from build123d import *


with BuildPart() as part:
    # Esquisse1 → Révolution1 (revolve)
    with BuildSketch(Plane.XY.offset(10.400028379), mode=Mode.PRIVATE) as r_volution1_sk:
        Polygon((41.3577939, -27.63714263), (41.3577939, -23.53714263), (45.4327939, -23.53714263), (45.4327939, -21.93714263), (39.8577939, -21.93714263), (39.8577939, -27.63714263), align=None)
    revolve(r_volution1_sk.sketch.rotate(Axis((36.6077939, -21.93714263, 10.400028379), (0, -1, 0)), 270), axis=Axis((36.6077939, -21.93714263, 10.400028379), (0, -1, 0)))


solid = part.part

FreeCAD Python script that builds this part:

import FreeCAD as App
import Part
import Sketcher
from FreeCAD import Vector
Q = App.Units.Quantity


def add_polygon(sketch, points):
    """Adds a closed chain of lines whose ends are joined by coincident constraints."""
    first, n = sketch.GeometryCount, len(points)
    for a, b in zip(points, points[1:] + points[:1]):
        sketch.addGeometry(Part.LineSegment(App.Vector(*a, 0), App.Vector(*b, 0)), False)
    for i in range(n):
        sketch.addConstraint(Sketcher.Constraint("Coincident", first + i, 2, first + (i + 1) % n, 1))

doc = App.newDocument("Part")
params = doc.addObject("Spreadsheet::Sheet", "Params")
for row, (alias, value) in enumerate([
    ("sketch1_width", "1.5 mm"),
    ("sketch1_height", "4.1 mm"),
    ("sketch1_height2", "1.6 mm"),
    ("revolution_angle", "360 deg"),
], start=1):
    params.set(f"A{row}", alias)
    params.set(f"B{row}", "=" + value)
    params.setAlias(f"B{row}", alias)

body = doc.addObject("PartDesign::Body", "Body")

sketch1 = doc.addObject("Sketcher::SketchObject", "Sketch")
body.addObject(sketch1)
sketch1.AttachmentSupport = (doc.XY_Plane, [""])
sketch1.MapMode = "FlatFace"
sketch1.AttachmentOffset = App.Placement(Vector(0, 0, 10.400028), App.Rotation())
add_polygon(sketch1, [(41.4, -27.6), (41.4, -23.5), (45.4, -23.5), (45.4, -21.9), (39.9, -21.9), (39.9, -27.6)])
sketch1.addGeometry(Part.LineSegment(Vector(36.6, -21.9, 0), Vector(36.6, -27.6, 0)), True)
sketch1.addConstraint(Sketcher.Constraint("Vertical", 0))
sketch1.addConstraint(Sketcher.Constraint("Horizontal", 1))
sketch1.addConstraint(Sketcher.Constraint("Vertical", 2))
sketch1.addConstraint(Sketcher.Constraint("Horizontal", 3))
sketch1.addConstraint(Sketcher.Constraint("Vertical", 4))
sketch1.addConstraint(Sketcher.Constraint("Horizontal", 5))
sketch1.addConstraint(Sketcher.Constraint("Vertical", 6))
sketch1.addConstraint(Sketcher.Constraint("Horizontal", 3, 2, 6, 1))
sketch1.addConstraint(Sketcher.Constraint("Horizontal", 5, 2, 6, 2))
sketch1.addConstraint(Sketcher.Constraint("DistanceX", 5, 1, 5, 2, Q("1.5 mm")))
sketch1.addConstraint(Sketcher.Constraint("DistanceY", 0, 1, 0, 2, Q("4.1 mm")))
sketch1.addConstraint(Sketcher.Constraint("DistanceY", 2, 1, 2, 2, Q("1.6 mm")))
sketch1.addConstraint(Sketcher.Constraint("DistanceX", 1, 1, 1, 2, Q("4.075 mm")))
sketch1.addConstraint(Sketcher.Constraint("DistanceX", 6, 1, 3, 2, Q("3.25 mm")))
sketch1.addConstraint(Sketcher.Constraint("DistanceX", -1, 1, 0, 2, Q("41.357794 mm")))
sketch1.addConstraint(Sketcher.Constraint("DistanceY", 0, 2, -1, 1, Q("23.537143 mm")))
sketch1.setExpression("Constraints[15]", "Params.sketch1_width")
sketch1.setExpression("Constraints[16]", "Params.sketch1_height")
sketch1.setExpression("Constraints[17]", "Params.sketch1_height2")
revolution = doc.addObject("PartDesign::Revolution", "Revolution")
body.addObject(revolution)
revolution.Profile = sketch1
revolution.ReferenceAxis = (sketch1, ["Axis0"])
revolution.setExpression("Angle", "Params.revolution_angle")

doc.recompute()
